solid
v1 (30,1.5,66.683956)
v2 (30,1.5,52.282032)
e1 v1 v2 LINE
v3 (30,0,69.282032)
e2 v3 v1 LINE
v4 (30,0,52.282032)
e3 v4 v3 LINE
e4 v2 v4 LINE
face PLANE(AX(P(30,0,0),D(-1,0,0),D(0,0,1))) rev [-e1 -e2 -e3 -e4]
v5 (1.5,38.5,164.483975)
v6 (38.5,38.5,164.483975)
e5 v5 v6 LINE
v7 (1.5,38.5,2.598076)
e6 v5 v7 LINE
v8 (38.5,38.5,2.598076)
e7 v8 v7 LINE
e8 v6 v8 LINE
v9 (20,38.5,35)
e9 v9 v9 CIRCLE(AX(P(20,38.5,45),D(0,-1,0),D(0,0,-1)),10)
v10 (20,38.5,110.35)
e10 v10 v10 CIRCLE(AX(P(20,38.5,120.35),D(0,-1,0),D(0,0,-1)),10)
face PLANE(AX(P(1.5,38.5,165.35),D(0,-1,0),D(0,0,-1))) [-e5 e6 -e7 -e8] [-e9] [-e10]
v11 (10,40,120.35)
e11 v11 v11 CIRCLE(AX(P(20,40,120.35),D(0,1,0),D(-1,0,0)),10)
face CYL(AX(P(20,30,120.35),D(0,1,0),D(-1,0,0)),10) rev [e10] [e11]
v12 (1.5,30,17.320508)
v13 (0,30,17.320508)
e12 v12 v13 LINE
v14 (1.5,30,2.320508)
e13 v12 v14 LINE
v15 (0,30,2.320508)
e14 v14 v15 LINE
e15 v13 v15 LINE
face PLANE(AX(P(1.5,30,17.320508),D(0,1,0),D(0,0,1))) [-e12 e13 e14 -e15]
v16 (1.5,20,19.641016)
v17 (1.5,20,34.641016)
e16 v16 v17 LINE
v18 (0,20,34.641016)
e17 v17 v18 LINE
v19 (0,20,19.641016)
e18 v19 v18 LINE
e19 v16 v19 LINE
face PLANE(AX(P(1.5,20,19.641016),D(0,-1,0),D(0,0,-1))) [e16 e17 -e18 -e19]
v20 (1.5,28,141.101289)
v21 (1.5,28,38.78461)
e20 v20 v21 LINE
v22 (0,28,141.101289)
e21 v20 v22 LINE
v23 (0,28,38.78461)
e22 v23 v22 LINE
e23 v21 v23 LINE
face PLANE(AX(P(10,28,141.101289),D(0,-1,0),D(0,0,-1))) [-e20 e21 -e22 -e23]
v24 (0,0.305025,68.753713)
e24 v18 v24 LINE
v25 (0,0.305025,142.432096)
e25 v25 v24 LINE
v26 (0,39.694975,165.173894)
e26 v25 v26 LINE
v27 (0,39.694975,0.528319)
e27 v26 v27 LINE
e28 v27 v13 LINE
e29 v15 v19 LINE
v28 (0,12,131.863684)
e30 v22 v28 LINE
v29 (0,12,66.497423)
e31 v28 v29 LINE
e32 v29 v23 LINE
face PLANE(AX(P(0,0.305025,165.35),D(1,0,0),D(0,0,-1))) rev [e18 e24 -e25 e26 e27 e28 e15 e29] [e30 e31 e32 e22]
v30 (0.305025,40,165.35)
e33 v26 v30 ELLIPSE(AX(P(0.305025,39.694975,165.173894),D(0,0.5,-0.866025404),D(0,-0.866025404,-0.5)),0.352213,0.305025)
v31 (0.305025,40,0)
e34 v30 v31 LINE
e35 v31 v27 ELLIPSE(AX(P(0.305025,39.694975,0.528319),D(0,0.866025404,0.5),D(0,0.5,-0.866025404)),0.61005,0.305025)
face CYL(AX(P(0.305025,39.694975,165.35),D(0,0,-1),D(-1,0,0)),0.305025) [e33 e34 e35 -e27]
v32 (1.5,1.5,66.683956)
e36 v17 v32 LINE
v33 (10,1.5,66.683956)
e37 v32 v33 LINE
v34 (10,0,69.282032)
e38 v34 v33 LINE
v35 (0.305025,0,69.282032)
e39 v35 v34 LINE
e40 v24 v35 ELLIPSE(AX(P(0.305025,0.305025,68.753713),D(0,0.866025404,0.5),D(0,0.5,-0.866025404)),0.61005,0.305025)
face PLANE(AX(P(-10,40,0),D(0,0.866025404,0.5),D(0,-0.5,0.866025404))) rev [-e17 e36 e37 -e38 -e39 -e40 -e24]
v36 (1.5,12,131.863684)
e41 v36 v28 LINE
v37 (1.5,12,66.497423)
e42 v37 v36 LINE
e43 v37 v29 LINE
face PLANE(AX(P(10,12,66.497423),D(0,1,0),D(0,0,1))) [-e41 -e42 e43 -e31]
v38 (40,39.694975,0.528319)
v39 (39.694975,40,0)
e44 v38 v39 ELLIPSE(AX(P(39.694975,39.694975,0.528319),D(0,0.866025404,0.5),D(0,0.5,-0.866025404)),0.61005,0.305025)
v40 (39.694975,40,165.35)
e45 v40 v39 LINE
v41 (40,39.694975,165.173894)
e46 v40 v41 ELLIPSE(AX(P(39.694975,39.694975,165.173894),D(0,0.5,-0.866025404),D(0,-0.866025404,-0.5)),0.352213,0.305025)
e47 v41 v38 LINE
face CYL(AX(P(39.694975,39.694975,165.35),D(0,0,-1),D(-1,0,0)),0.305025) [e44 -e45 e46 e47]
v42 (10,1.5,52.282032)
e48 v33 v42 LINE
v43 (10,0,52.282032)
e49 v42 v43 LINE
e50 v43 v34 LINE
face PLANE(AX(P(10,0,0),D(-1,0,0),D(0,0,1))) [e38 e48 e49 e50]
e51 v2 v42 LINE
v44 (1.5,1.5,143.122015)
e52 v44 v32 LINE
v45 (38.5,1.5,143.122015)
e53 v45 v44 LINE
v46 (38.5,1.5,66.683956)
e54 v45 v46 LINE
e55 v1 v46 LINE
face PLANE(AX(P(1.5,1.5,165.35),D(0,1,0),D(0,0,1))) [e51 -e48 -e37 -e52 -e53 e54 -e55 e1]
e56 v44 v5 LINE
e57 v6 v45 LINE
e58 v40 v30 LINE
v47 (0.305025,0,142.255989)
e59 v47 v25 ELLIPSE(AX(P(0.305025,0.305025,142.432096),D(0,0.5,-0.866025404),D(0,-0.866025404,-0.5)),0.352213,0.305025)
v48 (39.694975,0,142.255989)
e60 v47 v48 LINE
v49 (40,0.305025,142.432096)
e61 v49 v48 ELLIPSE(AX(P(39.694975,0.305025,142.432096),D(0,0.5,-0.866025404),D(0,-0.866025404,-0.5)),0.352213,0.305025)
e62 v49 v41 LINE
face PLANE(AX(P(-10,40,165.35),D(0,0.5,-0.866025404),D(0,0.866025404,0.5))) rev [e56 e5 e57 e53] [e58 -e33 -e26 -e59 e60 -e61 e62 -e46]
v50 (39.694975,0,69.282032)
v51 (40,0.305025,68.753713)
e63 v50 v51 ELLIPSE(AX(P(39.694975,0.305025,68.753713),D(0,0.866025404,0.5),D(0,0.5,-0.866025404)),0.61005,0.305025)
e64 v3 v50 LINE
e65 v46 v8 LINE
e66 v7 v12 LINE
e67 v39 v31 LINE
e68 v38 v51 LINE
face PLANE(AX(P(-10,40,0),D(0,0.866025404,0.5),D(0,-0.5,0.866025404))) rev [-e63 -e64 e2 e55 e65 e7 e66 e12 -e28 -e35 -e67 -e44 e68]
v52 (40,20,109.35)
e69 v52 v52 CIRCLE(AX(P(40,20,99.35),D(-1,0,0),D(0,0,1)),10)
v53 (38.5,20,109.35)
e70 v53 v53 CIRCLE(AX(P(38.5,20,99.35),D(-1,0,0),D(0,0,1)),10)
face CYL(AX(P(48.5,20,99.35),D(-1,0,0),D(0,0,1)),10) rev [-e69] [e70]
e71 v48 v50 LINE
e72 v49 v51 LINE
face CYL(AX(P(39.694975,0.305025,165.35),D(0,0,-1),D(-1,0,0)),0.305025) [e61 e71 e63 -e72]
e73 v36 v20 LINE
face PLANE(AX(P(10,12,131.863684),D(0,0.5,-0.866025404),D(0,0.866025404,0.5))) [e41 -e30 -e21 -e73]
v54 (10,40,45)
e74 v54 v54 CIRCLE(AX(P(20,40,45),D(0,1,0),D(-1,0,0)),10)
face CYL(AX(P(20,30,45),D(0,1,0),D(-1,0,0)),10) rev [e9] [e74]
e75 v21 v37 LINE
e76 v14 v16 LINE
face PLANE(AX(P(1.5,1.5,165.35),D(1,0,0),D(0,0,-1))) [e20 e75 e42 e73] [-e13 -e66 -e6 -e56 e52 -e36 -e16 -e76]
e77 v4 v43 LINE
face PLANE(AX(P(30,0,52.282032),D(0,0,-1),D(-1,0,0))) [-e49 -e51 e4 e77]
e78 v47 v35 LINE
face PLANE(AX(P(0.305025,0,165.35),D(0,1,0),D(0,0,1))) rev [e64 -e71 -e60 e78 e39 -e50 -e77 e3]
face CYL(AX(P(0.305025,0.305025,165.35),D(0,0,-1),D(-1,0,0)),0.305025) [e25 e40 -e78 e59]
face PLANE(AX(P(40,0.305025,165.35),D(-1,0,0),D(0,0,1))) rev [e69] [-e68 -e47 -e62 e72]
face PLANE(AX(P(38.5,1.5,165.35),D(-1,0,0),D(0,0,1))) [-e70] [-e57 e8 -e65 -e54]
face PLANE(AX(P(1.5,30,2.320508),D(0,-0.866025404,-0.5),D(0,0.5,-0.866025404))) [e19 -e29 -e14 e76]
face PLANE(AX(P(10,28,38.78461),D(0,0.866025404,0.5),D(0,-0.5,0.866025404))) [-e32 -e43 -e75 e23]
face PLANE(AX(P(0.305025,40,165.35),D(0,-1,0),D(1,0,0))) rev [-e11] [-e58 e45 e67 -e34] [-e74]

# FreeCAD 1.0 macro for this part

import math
import FreeCAD as App
import Part
import Sketcher
from FreeCAD import Vector
Q = App.Units.Quantity

doc = App.newDocument("Part")
body = doc.addObject("PartDesign::Body", "Body")

sketch1 = body.newObject("Sketcher::SketchObject", "Sketch")
sketch1.AttachmentSupport = (doc.getObject("XY_Plane"), [""])
sketch1.MapMode = "FlatFace"
sketch1.addGeometry(Part.LineSegment(Vector(0.305025, 0, 0), Vector(39.694975, 0, 0)), False)
sketch1.addGeometry(Part.ArcOfCircle(Part.Circle(Vector(39.694975, 0.305025, 0), Vector(0, 0, 1), 0.305025), math.radians(-90), math.radians(0)), False)
sketch1.addGeometry(Part.LineSegment(Vector(40, 0.305025, 0), Vector(40, 39.694975, 0)), False)
sketch1.addGeometry(Part.ArcOfCircle(Part.Circle(Vector(39.694975, 39.694975, 0), Vector(0, 0, 1), 0.305025), math.radians(0), math.radians(90)), False)
sketch1.addGeometry(Part.LineSegment(Vector(39.694975, 40, 0), Vector(0.305025, 40, 0)), False)
sketch1.addGeometry(Part.ArcOfCircle(Part.Circle(Vector(0.305025, 39.694975, 0), Vector(0, 0, 1), 0.305025), math.radians(90), math.radians(180)), False)
sketch1.addGeometry(Part.LineSegment(Vector(0, 39.694975, 0), Vector(0, 0.305025, 0)), False)
sketch1.addGeometry(Part.ArcOfCircle(Part.Circle(Vector(0.305025, 0.305025, 0), Vector(0, 0, 1), 0.305025), math.radians(180), math.radians(270)), False)
sketch1.addGeometry(Part.LineSegment(Vector(38.5, 1.5, 0), Vector(1.5, 1.5, 0)), False)
sketch1.addGeometry(Part.LineSegment(Vector(1.5, 1.5, 0), Vector(1.5, 38.5, 0)), False)
sketch1.addGeometry(Part.LineSegment(Vector(1.5, 38.5, 0), Vector(38.5, 38.5, 0)), False)
sketch1.addGeometry(Part.LineSegment(Vector(38.5, 38.5, 0), Vector(38.5, 1.5, 0)), False)
sketch1.addConstraint(Sketcher.Constraint("Tangent", 0, 2, 1, 1))
sketch1.addConstraint(Sketcher.Constraint("Tangent", 1, 2, 2, 1))
sketch1.addConstraint(Sketcher.Constraint("Tangent", 2, 2, 3, 1))
sketch1.addConstraint(Sketcher.Constraint("Tangent", 3, 2, 4, 1))
sketch1.addConstraint(Sketcher.Constraint("Tangent", 4, 2, 5, 1))
sketch1.addConstraint(Sketcher.Constraint("Tangent", 5, 2, 6, 1))
sketch1.addConstraint(Sketcher.Constraint("Tangent", 6, 2, 7, 1))
sketch1.addConstraint(Sketcher.Constraint("Tangent", 7, 2, 0, 1))
sketch1.addConstraint(Sketcher.Constraint("Coincident", 8, 2, 9, 1))
sketch1.addConstraint(Sketcher.Constraint("Coincident", 9, 2, 10, 1))
sketch1.addConstraint(Sketcher.Constraint("Coincident", 10, 2, 11, 1))
sketch1.addConstraint(Sketcher.Constraint("Coincident", 11, 2, 8, 1))
sketch1.addConstraint(Sketcher.Constraint("Horizontal", 0))
sketch1.addConstraint(Sketcher.Constraint("Vertical", 2))
sketch1.addConstraint(Sketcher.Constraint("Horizontal", 4))
sketch1.addConstraint(Sketcher.Constraint("Vertical", 6))
sketch1.addConstraint(Sketcher.Constraint("Horizontal", 8))
sketch1.addConstraint(Sketcher.Constraint("Vertical", 9))
sketch1.addConstraint(Sketcher.Constraint("Horizontal", 10))
sketch1.addConstraint(Sketcher.Constraint("Vertical", 11))
sketch1.addConstraint(Sketcher.Constraint("Equal", 1, 3))
sketch1.addConstraint(Sketcher.Constraint("Equal", 3, 5))
sketch1.addConstraint(Sketcher.Constraint("Equal", 5, 7))
sketch1.addConstraint(Sketcher.Constraint("PointOnObject", 0, 2, -1))
sketch1.addConstraint(Sketcher.Constraint("PointOnObject", 5, 2, -2))
sketch1.addConstraint(Sketcher.Constraint("Equal", 4, 2))
sketch1.addConstraint(Sketcher.Constraint("Equal", 10, 9))
sketch1.addConstraint(Sketcher.Constraint("DistanceX", 8, 2, 8, 1, Q("37 mm")))
sketch1.addConstraint(Sketcher.Constraint("DistanceX", -1, 1, 1, 2, Q("40 mm")))
sketch1.addConstraint(Sketcher.Constraint("DistanceX", -1, 1, 8, 2, Q("1.5 mm")))
sketch1.addConstraint(Sketcher.Constraint("DistanceY", -1, 1, 8, 2, Q("1.5 mm")))
sketch1.addConstraint(Sketcher.Constraint("Radius", 1, Q("0.305025 mm")))
pad1 = body.newObject("PartDesign::Pad", "Pad")
pad1.Profile = sketch1
pad1.Length = 165.35

sketch2 = body.newObject("Sketcher::SketchObject", "Sketch001")
sketch2.AttachmentSupport = (doc.getObject("YZ_Plane"), [""])
sketch2.MapMode = "FlatFace"
sketch2.AttachmentOffset = App.Placement(Vector(0, 0, 40), App.Rotation())
sketch2.addGeometry(Part.LineSegment(Vector(40, 0, 0), Vector(0, 69.282032, 0)), False)
sketch2.addGeometry(Part.LineSegment(Vector(0, 69.282032, 0), Vector(0, 0, 0)), False)
sketch2.addGeometry(Part.LineSegment(Vector(0, 0, 0), Vector(40, 0, 0)), False)
sketch2.addGeometry(Part.LineSegment(Vector(0, 142.255989, 0), Vector(40, 165.35, 0)), False)
sketch2.addGeometry(Part.LineSegment(Vector(40, 165.35, 0), Vector(0, 165.35, 0)), False)
sketch2.addGeometry(Part.LineSegment(Vector(0, 165.35, 0), Vector(0, 142.255989, 0)), False)
sketch2.addConstraint(Sketcher.Constraint("Coincident", 0, 2, 1, 1))
sketch2.addConstraint(Sketcher.Constraint("Coincident", 1, 2, 2, 1))
sketch2.addConstraint(Sketcher.Constraint("Coincident", 2, 2, 0, 1))
sketch2.addConstraint(Sketcher.Constraint("Coincident", 3, 2, 4, 1))
sketch2.addConstraint(Sketcher.Constraint("Coincident", 4, 2, 5, 1))
sketch2.addConstraint(Sketcher.Constraint("Coincident", 5, 2, 3, 1))
sketch2.addConstraint(Sketcher.Constraint("Vertical", 1))
sketch2.addConstraint(Sketcher.Constraint("Horizontal", 2))
sketch2.addConstraint(Sketcher.Constraint("Horizontal", 4))
sketch2.addConstraint(Sketcher.Constraint("Vertical", 5))
sketch2.addConstraint(Sketcher.Constraint("Coincident", 1, 2, -1, 1))
sketch2.addConstraint(Sketcher.Constraint("PointOnObject", 4, 2, -2))
sketch2.addConstraint(Sketcher.Constraint("Perpendicular", 0, 3))
sketch2.addConstraint(Sketcher.Constraint("Vertical", 2, 2, 3, 2))
sketch2.addConstraint(Sketcher.Constraint("DistanceX", 2, 1, 2, 2, Q("40 mm")))
sketch2.addConstraint(Sketcher.Constraint("Angle", 0, Q("120 deg")))
sketch2.addConstraint(Sketcher.Constraint("DistanceY", -1, 1, 3, 2, Q("165.35 mm")))
pocket1 = body.newObject("PartDesign::Pocket", "Pocket")
pocket1.Profile = sketch2
pocket1.Length = 50

sketch3 = body.newObject("Sketcher::SketchObject", "Sketch002")
sketch3.AttachmentSupport = (doc.getObject("YZ_Plane"), [""])
sketch3.MapMode = "FlatFace"
sketch3.AttachmentOffset = App.Placement(Vector(0, 0, 10), App.Rotation())
sketch3.addGeometry(Part.LineSegment(Vector(0, 52.282032, 0), Vector(0, 69.282032, 0)), False)
sketch3.addGeometry(Part.LineSegment(Vector(0, 69.282032, 0), Vector(1.5, 66.683956, 0)), False)
sketch3.addGeometry(Part.LineSegment(Vector(1.5, 66.683956, 0), Vector(1.5, 52.282032, 0)), False)
sketch3.addGeometry(Part.LineSegment(Vector(1.5, 52.282032, 0), Vector(0, 52.282032, 0)), False)
sketch3.addConstraint(Sketcher.Constraint("Coincident", 0, 2, 1, 1))
sketch3.addConstraint(Sketcher.Constraint("Coincident", 1, 2, 2, 1))
sketch3.addConstraint(Sketcher.Constraint("Coincident", 2, 2, 3, 1))
sketch3.addConstraint(Sketcher.Constraint("Coincident", 3, 2, 0, 1))
sketch3.addConstraint(Sketcher.Constraint("Vertical", 0))
sketch3.addConstraint(Sketcher.Constraint("Vertical", 2))
sketch3.addConstraint(Sketcher.Constraint("Horizontal", 3))
sketch3.addConstraint(Sketcher.Constraint("PointOnObject", 0, 2, -2))
sketch3.addConstraint(Sketcher.Constraint("DistanceY", 0, 1, 0, 2, Q("17 mm")))
sketch3.addConstraint(Sketcher.Constraint("Angle", 1, Q("-60 deg")))
sketch3.addConstraint(Sketcher.Constraint("Distance", 1, Q("3 mm")))
sketch3.addConstraint(Sketcher.Constraint("DistanceY", -1, 1, 0, 2, Q("69.282032 mm")))
pad2 = body.newObject("PartDesign::Pad", "Pad001")
pad2.Profile = sketch3
pad2.Length = 20

sketch4 = body.newObject("Sketcher::SketchObject", "Sketch003")
sketch4.AttachmentSupport = (doc.getObject("YZ_Plane"), [""])
sketch4.MapMode = "FlatFace"
sketch4.addGeometry(Part.LineSegment(Vector(30, 2.320508, 0), Vector(20, 19.641016, 0)), False)
sketch4.addGeometry(Part.LineSegment(Vector(20, 19.641016, 0), Vector(20, 34.641016, 0)), False)
sketch4.addGeometry(Part.LineSegment(Vector(20, 34.641016, 0), Vector(30, 17.320508, 0)), False)
sketch4.addGeometry(Part.LineSegment(Vector(30, 17.320508, 0), Vector(30, 2.320508, 0)), False)
sketch4.addConstraint(Sketcher.Constraint("Coincident", 0, 2, 1, 1))
sketch4.addConstraint(Sketcher.Constraint("Coincident", 1, 2, 2, 1))
sketch4.addConstraint(Sketcher.Constraint("Coincident", 2, 2, 3, 1))
sketch4.addConstraint(Sketcher.Constraint("Coincident", 3, 2, 0, 1))
sketch4.addConstraint(Sketcher.Constraint("Vertical", 1))
sketch4.addConstraint(Sketcher.Constraint("Vertical", 3))
sketch4.addConstraint(Sketcher.Constraint("Parallel", 0, 2))
sketch4.addConstraint(Sketcher.Constraint("DistanceY", 1, 1, 1, 2, Q("15 mm")))
sketch4.addConstraint(Sketcher.Constraint("Angle", 0, Q("120 deg")))
sketch4.addConstraint(Sketcher.Constraint("Distance", 0, Q("20 mm")))
sketch4.addConstraint(Sketcher.Constraint("DistanceX", -1, 1, 0, 2, Q("20 mm")))
sketch4.addConstraint(Sketcher.Constraint("DistanceY", -1, 1, 2, 2, Q("17.320508 mm")))
pad3 = body.newObject("PartDesign::Pad", "Pad002")
pad3.Profile = sketch4
pad3.Length = 1.5

sketch5 = body.newObject("Sketcher::SketchObject", "Sketch004")
sketch5.AttachmentSupport = (doc.getObject("YZ_Plane"), [""])
sketch5.MapMode = "FlatFace"
sketch5.addGeometry(Part.LineSegment(Vector(12, 66.497423, 0), Vector(28, 38.78461, 0)), False)
sketch5.addGeometry(Part.LineSegment(Vector(28, 38.78461, 0), Vector(28, 141.101289, 0)), False)
sketch5.addGeometry(Part.LineSegment(Vector(28, 141.101289, 0), Vector(12, 131.863684, 0)), False)
sketch5.addGeometry(Part.LineSegment(Vector(12, 131.863684, 0), Vector(12, 66.497423, 0)), False)
sketch5.addConstraint(Sketcher.Constraint("Coincident", 0, 2, 1, 1))
sketch5.addConstraint(Sketcher.Constraint("Coincident", 1, 2, 2, 1))
sketch5.addConstraint(Sketcher.Constraint("Coincident", 2, 2, 3, 1))
sketch5.addConstraint(Sketcher.Constraint("Coincident", 3, 2, 0, 1))
sketch5.addConstraint(Sketcher.Constraint("Vertical", 1))
sketch5.addConstraint(Sketcher.Constraint("Vertical", 3))
sketch5.addConstraint(Sketcher.Constraint("Perpendicular", 0, 2))
sketch5.addConstraint(Sketcher.Constraint("Angle", 0, Q("-60 deg")))
sketch5.addConstraint(Sketcher.Constraint("Distance", 0, Q("32 mm")))
sketch5.addConstraint(Sketcher.Constraint("DistanceX", -1, 1, 0, 2, Q("28 mm")))
sketch5.addConstraint(Sketcher.Constraint("DistanceY", 1, 1, 1, 2, Q("102.316679 mm")))
sketch5.addConstraint(Sketcher.Constraint("DistanceY", -1, 1, 0, 2, Q("38.78461 mm")))
pocket2 = body.newObject("PartDesign::Pocket", "Pocket001")
pocket2.Profile = sketch5
pocket2.Length = 10
pocket2.Reversed = True

sketch6 = body.newObject("Sketcher::SketchObject", "Sketch005")
sketch6.AttachmentSupport = (doc.getObject("XZ_Plane"), [""])
sketch6.MapMode = "FlatFace"
sketch6.AttachmentOffset = App.Placement(Vector(0, 0, -40), App.Rotation())
sketch6.addGeometry(Part.Circle(Vector(20, 120.35, 0), Vector(0, 0, 1), 10), False)
sketch6.addGeometry(Part.Circle(Vector(20, 45, 0), Vector(0, 0, 1), 10), False)
sketch6.addConstraint(Sketcher.Constraint("Equal", 0, 1))
sketch6.addConstraint(Sketcher.Constraint("Vertical", 0, 3, 1, 3))
sketch6.addConstraint(Sketcher.Constraint("Diameter", 0, Q("20 mm")))
sketch6.addConstraint(Sketcher.Constraint("DistanceX", -1, 1, 0, 3, Q("20 mm")))
sketch6.addConstraint(Sketcher.Constraint("DistanceY", -1, 1, 1, 3, Q("45 mm")))
sketch6.addConstraint(Sketcher.Constraint("DistanceY", -1, 1, 0, 3, Q("120.35 mm")))
pocket3 = body.newObject("PartDesign::Pocket", "Pocket002")
pocket3.Profile = sketch6
pocket3.Length = 10
pocket3.Reversed = True

sketch7 = body.newObject("Sketcher::SketchObject", "Sketch006")
sketch7.AttachmentSupport = (doc.getObject("YZ_Plane"), [""])
sketch7.MapMode = "FlatFace"
sketch7.AttachmentOffset = App.Placement(Vector(0, 0, 38.5), App.Rotation())
sketch7.addGeometry(Part.Circle(Vector(20, 99.35, 0), Vector(0, 0, 1), 10), False)
sketch7.addConstraint(Sketcher.Constraint("Diameter", 0, Q("20 mm")))
sketch7.addConstraint(Sketcher.Constraint("DistanceX", -1, 1, 0, 3, Q("20 mm")))
sketch7.addConstraint(Sketcher.Constraint("DistanceY", -1, 1, 0, 3, Q("99.35 mm")))
pocket4 = body.newObject("PartDesign::Pocket", "Pocket003")
pocket4.Profile = sketch7
pocket4.Length = 10
pocket4.Reversed = True

doc.recompute()
